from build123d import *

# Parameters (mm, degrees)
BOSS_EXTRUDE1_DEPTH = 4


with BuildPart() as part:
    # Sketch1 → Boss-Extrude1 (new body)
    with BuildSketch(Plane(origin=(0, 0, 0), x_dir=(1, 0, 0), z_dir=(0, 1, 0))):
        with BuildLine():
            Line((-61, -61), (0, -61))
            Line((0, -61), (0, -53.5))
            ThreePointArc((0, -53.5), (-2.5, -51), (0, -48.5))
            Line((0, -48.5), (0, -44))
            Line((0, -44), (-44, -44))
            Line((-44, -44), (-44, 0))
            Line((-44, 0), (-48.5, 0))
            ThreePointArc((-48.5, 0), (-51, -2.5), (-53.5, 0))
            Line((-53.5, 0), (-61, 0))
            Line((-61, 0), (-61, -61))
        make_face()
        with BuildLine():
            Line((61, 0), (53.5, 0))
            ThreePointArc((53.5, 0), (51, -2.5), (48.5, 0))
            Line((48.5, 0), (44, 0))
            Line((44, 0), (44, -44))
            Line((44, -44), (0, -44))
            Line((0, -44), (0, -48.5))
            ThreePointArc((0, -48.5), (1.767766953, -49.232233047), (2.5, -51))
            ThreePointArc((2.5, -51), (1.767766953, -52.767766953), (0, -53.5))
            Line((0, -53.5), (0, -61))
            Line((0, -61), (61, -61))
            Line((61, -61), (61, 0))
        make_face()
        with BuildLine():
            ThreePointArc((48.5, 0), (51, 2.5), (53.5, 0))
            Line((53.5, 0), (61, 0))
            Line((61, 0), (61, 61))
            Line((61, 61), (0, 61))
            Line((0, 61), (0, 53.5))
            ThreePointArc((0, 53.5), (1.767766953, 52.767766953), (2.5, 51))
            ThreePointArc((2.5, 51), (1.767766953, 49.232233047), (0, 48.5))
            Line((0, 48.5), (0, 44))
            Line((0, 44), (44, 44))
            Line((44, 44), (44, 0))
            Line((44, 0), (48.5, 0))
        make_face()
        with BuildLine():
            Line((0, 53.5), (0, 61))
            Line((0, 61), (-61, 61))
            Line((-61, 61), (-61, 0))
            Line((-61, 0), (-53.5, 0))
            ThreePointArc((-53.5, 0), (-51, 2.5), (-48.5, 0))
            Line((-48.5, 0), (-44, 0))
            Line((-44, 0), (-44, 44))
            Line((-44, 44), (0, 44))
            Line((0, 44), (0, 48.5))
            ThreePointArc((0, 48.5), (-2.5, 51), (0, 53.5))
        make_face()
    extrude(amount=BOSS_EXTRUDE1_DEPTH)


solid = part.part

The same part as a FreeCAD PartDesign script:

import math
import FreeCAD as App
import Part
import Sketcher
from FreeCAD import Vector
Q = App.Units.Quantity

doc = App.newDocument("Part")
body = doc.addObject("PartDesign::Body", "Body")

# Sketch on XZ plane
sketch1 = body.newObject("Sketcher::SketchObject", "Sketch")
sketch1.AttachmentSupport = (doc.getObject("XZ_Plane"), [""])
sketch1.MapMode = "FlatFace"
sketch1.addGeometry(Part.LineSegment(Vector(-61, 61, 0), Vector(61, 61, 0)), False)
sketch1.addGeometry(Part.LineSegment(Vector(61, 61, 0), Vector(61, -61, 0)), False)
sketch1.addGeometry(Part.LineSegment(Vector(61, -61, 0), Vector(-61, -61, 0)), False)
sketch1.addGeometry(Part.LineSegment(Vector(-61, -61, 0), Vector(-61, 61, 0)), False)
sketch1.addGeometry(Part.ArcOfCircle(Part.Circle(Vector(0, -51, 0), Vector(0, 0, 1), 2.5), math.radians(-90), math.radians(0)), False)
sketch1.addGeometry(Part.ArcOfCircle(Part.Circle(Vector(0, -51, 0), Vector(0, 0, 1), 2.5), math.radians(0), math.radians(90)), False)
sketch1.addGeometry(Part.ArcOfCircle(Part.Circle(Vector(0, -51, 0), Vector(0, 0, 1), 2.5), math.radians(90), math.radians(270)), False)
sketch1.addGeometry(Part.LineSegment(Vector(44, -44, 0), Vector(44, 44, 0)), False)
sketch1.addGeometry(Part.LineSegment(Vector(44, 44, 0), Vector(-44, 44, 0)), False)
sketch1.addGeometry(Part.LineSegment(Vector(-44, 44, 0), Vector(-44, -44, 0)), False)
sketch1.addGeometry(Part.LineSegment(Vector(-44, -44, 0), Vector(44, -44, 0)), False)
sketch1.addGeometry(Part.Circle(Vector(-51, 0, 0), Vector(0, 0, 1), 2.5), False)
sketch1.addGeometry(Part.Circle(Vector(51, 0, 0), Vector(0, 0, 1), 2.5), False)
sketch1.addGeometry(Part.ArcOfCircle(Part.Circle(Vector(0, 51, 0), Vector(0, 0, 1), 2.5), math.radians(90), math.radians(270)), False)
sketch1.addGeometry(Part.ArcOfCircle(Part.Circle(Vector(0, 51, 0), Vector(0, 0, 1), 2.5), math.radians(-90), math.radians(0)), False)
sketch1.addGeometry(Part.ArcOfCircle(Part.Circle(Vector(0, 51, 0), Vector(0, 0, 1), 2.5), math.radians(0), math.radians(90)), False)
sketch1.addConstraint(Sketcher.Constraint("Coincident", 0, 2, 1, 1))
sketch1.addConstraint(Sketcher.Constraint("Coincident", 1, 2, 2, 1))
sketch1.addConstraint(Sketcher.Constraint("Coincident", 2, 2, 3, 1))
sketch1.addConstraint(Sketcher.Constraint("Coincident", 3, 2, 0, 1))
sketch1.addConstraint(Sketcher.Constraint("Tangent", 4, 2, 5, 1))
sketch1.addConstraint(Sketcher.Constraint("Tangent", 5, 2, 6, 1))
sketch1.addConstraint(Sketcher.Constraint("Tangent", 6, 2, 4, 1))
sketch1.addConstraint(Sketcher.Constraint("Coincident", 7, 2, 8, 1))
sketch1.addConstraint(Sketcher.Constraint("Coincident", 8, 2, 9, 1))
sketch1.addConstraint(Sketcher.Constraint("Coincident", 9, 2, 10, 1))
sketch1.addConstraint(Sketcher.Constraint("Coincident", 10, 2, 7, 1))
sketch1.addConstraint(Sketcher.Constraint("Tangent", 13, 2, 14, 1))
sketch1.addConstraint(Sketcher.Constraint("Tangent", 14, 2, 15, 1))
sketch1.addConstraint(Sketcher.Constraint("Tangent", 15, 2, 13, 1))
sketch1.addConstraint(Sketcher.Constraint("Horizontal", 0))
sketch1.addConstraint(Sketcher.Constraint("Vertical", 1))
sketch1.addConstraint(Sketcher.Constraint("Horizontal", 2))
sketch1.addConstraint(Sketcher.Constraint("Vertical", 3))
sketch1.addConstraint(Sketcher.Constraint("Vertical", 7))
sketch1.addConstraint(Sketcher.Constraint("Horizontal", 8))
sketch1.addConstraint(Sketcher.Constraint("Vertical", 9))
sketch1.addConstraint(Sketcher.Constraint("Horizontal", 10))
sketch1.addConstraint(Sketcher.Constraint("Equal", 6, 11))
sketch1.addConstraint(Sketcher.Constraint("Equal", 11, 12))
sketch1.addConstraint(Sketcher.Constraint("Equal", 12, 13))
sketch1.addConstraint(Sketcher.Constraint("Symmetric", 11, 3, 12, 3, -1, 1))
sketch1.addConstraint(Sketcher.Constraint("Symmetric", 4, 3, 13, 3, -1, 1))
sketch1.addConstraint(Sketcher.Constraint("Symmetric", 0, 2, 2, 2, -1, 1))
sketch1.addConstraint(Sketcher.Constraint("Symmetric", 7, 2, 9, 2, -1, 1))
sketch1.addConstraint(Sketcher.Constraint("Symmetric", 4, 2, 14, 2, -1))
sketch1.addConstraint(Sketcher.Constraint("PointOnObject", 11, 3, -1))
sketch1.addConstraint(Sketcher.Constraint("PointOnObject", 5, 2, -2))
sketch1.addConstraint(Sketcher.Constraint("PointOnObject", 6, 2, -2))
sketch1.addConstraint(Sketcher.Constraint("PointOnObject", 13, 2, -2))
sketch1.addConstraint(Sketcher.Constraint("PointOnObject", 15, 2, -2))
sketch1.addConstraint(Sketcher.Constraint("Horizontal", 6, 3, 4, 2))
sketch1.addConstraint(Sketcher.Constraint("Equal", 2, 1))
sketch1.addConstraint(Sketcher.Constraint("Equal", 10, 7))
sketch1.addConstraint(Sketcher.Constraint("Diameter", 11, Q("5 mm")))
sketch1.addConstraint(Sketcher.Constraint("DistanceX", 0, 1, 0, 2, Q("122 mm")))
sketch1.addConstraint(Sketcher.Constraint("DistanceX", 8, 2, 8, 1, Q("88 mm")))
sketch1.addConstraint(Sketcher.Constraint("DistanceY", 4, 3, -1, 1, Q("51 mm")))
sketch1.addConstraint(Sketcher.Constraint("DistanceX", 11, 3, -1, 1, Q("51 mm")))
pad1 = body.newObject("PartDesign::Pad", "Pad")
pad1.Profile = sketch1
pad1.Length = 4
pad1.Reversed = True

doc.recompute()
